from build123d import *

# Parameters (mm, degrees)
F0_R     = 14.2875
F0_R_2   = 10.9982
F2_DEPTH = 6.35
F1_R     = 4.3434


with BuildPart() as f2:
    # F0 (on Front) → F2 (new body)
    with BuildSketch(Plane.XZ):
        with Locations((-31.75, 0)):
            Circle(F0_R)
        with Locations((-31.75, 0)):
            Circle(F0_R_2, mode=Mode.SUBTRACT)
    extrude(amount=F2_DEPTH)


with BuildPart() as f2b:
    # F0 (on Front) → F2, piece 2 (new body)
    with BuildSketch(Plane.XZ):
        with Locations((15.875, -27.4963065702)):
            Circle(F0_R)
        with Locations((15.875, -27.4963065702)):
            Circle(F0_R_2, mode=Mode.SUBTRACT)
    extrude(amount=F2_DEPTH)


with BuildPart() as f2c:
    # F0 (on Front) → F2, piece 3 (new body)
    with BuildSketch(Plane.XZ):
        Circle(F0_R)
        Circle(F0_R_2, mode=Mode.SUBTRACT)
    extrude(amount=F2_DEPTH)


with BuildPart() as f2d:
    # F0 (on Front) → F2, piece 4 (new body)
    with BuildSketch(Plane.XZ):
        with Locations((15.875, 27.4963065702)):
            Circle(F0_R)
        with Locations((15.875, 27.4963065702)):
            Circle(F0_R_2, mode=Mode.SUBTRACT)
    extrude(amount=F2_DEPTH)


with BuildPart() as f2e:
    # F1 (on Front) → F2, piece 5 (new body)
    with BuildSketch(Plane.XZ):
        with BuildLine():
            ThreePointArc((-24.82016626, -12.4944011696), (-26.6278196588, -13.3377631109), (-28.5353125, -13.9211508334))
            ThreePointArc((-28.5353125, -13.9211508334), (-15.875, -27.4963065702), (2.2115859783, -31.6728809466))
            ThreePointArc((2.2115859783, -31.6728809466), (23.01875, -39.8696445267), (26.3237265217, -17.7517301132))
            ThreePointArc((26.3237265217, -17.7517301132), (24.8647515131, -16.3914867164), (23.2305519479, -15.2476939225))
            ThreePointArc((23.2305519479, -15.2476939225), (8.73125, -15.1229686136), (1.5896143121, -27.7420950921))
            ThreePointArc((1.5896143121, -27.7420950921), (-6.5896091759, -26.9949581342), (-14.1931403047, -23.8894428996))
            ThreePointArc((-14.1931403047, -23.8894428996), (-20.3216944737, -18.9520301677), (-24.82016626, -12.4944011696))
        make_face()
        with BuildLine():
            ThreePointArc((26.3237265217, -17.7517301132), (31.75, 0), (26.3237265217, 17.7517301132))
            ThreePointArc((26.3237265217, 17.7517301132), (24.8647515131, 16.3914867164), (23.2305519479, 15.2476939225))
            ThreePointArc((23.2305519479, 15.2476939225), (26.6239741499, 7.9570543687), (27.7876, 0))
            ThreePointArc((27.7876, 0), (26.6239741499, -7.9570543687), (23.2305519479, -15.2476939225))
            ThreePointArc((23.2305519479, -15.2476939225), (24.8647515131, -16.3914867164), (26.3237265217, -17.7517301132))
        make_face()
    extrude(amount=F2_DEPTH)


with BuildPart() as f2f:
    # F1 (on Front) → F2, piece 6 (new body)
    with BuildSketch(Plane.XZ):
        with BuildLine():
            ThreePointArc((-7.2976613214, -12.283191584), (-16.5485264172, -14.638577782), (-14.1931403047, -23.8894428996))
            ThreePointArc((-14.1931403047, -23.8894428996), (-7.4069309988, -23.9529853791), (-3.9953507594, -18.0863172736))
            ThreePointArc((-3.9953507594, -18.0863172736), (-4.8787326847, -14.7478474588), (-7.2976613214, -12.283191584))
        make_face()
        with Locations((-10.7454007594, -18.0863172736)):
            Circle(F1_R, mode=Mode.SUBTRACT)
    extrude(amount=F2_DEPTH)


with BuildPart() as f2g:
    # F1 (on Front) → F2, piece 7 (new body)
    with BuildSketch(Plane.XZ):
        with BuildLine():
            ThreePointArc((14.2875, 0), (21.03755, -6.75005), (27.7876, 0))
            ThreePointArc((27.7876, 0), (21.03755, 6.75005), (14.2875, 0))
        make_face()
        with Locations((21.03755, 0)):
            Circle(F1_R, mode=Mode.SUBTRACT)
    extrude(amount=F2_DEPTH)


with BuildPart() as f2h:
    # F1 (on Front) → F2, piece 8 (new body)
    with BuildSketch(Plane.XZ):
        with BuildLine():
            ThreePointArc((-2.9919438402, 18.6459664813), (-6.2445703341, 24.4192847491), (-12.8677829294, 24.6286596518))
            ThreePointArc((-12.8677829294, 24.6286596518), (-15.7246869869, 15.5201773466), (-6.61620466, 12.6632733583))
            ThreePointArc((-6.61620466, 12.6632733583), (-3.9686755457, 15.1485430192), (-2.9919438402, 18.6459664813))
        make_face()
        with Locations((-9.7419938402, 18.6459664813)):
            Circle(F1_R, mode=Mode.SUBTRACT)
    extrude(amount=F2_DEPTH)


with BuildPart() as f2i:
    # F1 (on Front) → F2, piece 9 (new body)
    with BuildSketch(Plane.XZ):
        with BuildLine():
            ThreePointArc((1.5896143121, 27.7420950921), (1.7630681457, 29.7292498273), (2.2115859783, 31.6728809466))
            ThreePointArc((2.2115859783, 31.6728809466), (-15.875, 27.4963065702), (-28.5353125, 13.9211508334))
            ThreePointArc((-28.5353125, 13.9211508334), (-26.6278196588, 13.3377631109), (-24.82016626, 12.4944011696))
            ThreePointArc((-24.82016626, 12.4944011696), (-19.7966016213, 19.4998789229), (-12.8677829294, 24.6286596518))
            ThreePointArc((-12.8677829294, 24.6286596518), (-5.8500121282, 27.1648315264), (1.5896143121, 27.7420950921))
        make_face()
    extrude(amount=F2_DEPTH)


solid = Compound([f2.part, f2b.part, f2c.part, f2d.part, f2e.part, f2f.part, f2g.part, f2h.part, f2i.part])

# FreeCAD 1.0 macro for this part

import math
import FreeCAD as App
import Part
import Sketcher
from FreeCAD import Vector
Q = App.Units.Quantity

doc = App.newDocument("Part")
body = doc.addObject("PartDesign::Body", "Body")

# Sketch on XZ plane
sketch1 = body.newObject("Sketcher::SketchObject", "Sketch")
sketch1.AttachmentSupport = (doc.getObject("XZ_Plane"), [""])
sketch1.MapMode = "FlatFace"
sketch1.addGeometry(Part.Circle(Vector(-32, 0, 0), Vector(0, 0, 1), 14), False)
sketch1.addGeometry(Part.Circle(Vector(-32, 0, 0), Vector(0, 0, 1), 11), False)
sketch1.addConstraint(Sketcher.Constraint("Coincident", 1, 3, 0, 3))
sketch1.addConstraint(Sketcher.Constraint("PointOnObject", 0, 3, -1))
sketch1.addConstraint(Sketcher.Constraint("Diameter", 0, Q("1.125 in")))
sketch1.addConstraint(Sketcher.Constraint("Diameter", 1, Q("0.866 in")))
sketch1.addConstraint(Sketcher.Constraint("DistanceX", 0, 3, -1, 1, Q("1.25 in")))
pad1 = body.newObject("PartDesign::Pad", "Pad")
pad1.Profile = sketch1
pad1.Length = Q("0.25 in")
body2 = doc.addObject("PartDesign::Body", "Body001")

# Sketch on XZ plane
sketch2 = body2.newObject("Sketcher::SketchObject", "Sketch001")
sketch2.AttachmentSupport = (doc.getObject("XZ_Plane001"), [""])
sketch2.MapMode = "FlatFace"
sketch2.addGeometry(Part.Circle(Vector(16, -27, 0), Vector(0, 0, 1), 14), False)
sketch2.addGeometry(Part.Circle(Vector(16, -27, 0), Vector(0, 0, 1), 11), False)
sketch2.addConstraint(Sketcher.Constraint("Coincident", 1, 3, 0, 3))
sketch2.addConstraint(Sketcher.Constraint("Diameter", 0, Q("1.125 in")))
sketch2.addConstraint(Sketcher.Constraint("Diameter", 1, Q("0.866 in")))
sketch2.addConstraint(Sketcher.Constraint("DistanceX", -1, 1, 0, 3, Q("0.625 in")))
sketch2.addConstraint(Sketcher.Constraint("DistanceY", 0, 3, -1, 1, 27.496307))
pad2 = body2.newObject("PartDesign::Pad", "Pad001")
pad2.Profile = sketch2
pad2.Length = Q("0.25 in")
body3 = doc.addObject("PartDesign::Body", "Body002")

# Sketch on XZ plane
sketch3 = body3.newObject("Sketcher::SketchObject", "Sketch002")
sketch3.AttachmentSupport = (doc.getObject("XZ_Plane002"), [""])
sketch3.MapMode = "FlatFace"
sketch3.addGeometry(Part.Circle(Vector(0, 0, 0), Vector(0, 0, 1), 14), False)
sketch3.addGeometry(Part.Circle(Vector(0, 0, 0), Vector(0, 0, 1), 11), False)
sketch3.addConstraint(Sketcher.Constraint("Coincident", 0, 3, -1, 1))
sketch3.addConstraint(Sketcher.Constraint("Coincident", 1, 3, -1, 1))
sketch3.addConstraint(Sketcher.Constraint("Diameter", 0, Q("1.125 in")))
sketch3.addConstraint(Sketcher.Constraint("Diameter", 1, Q("0.866 in")))
pad3 = body3.newObject("PartDesign::Pad", "Pad002")
pad3.Profile = sketch3
pad3.Length = Q("0.25 in")
body4 = doc.addObject("PartDesign::Body", "Body003")

# Sketch on XZ plane
sketch4 = body4.newObject("Sketcher::SketchObject", "Sketch003")
sketch4.AttachmentSupport = (doc.getObject("XZ_Plane003"), [""])
sketch4.MapMode = "FlatFace"
sketch4.addGeometry(Part.Circle(Vector(16, 27, 0), Vector(0, 0, 1), 14), False)
sketch4.addGeometry(Part.Circle(Vector(16, 27, 0), Vector(0, 0, 1), 11), False)
sketch4.addConstraint(Sketcher.Constraint("Coincident", 1, 3, 0, 3))
sketch4.addConstraint(Sketcher.Constraint("Diameter", 0, Q("1.125 in")))
sketch4.addConstraint(Sketcher.Constraint("Diameter", 1, Q("0.866 in")))
sketch4.addConstraint(Sketcher.Constraint("DistanceX", -1, 1, 0, 3, Q("0.625 in")))
sketch4.addConstraint(Sketcher.Constraint("DistanceY", -1, 1, 0, 3, 27.496307))
pad4 = body4.newObject("PartDesign::Pad", "Pad003")
pad4.Profile = sketch4
pad4.Length = Q("0.25 in")
body5 = doc.addObject("PartDesign::Body", "Body004")

# Sketch on XZ plane
sketch5 = body5.newObject("Sketcher::SketchObject", "Sketch004")
sketch5.AttachmentSupport = (doc.getObject("XZ_Plane004"), [""])
sketch5.MapMode = "FlatFace"
sketch5.addGeometry(Part.ArcOfCircle(Part.Circle(Vector(-31.7, 0, 0), Vector(0, 0, 1), 14.3), math.radians(-77), math.radians(-60.99)), False)
sketch5.addGeometry(Part.ArcOfCircle(Part.Circle(Vector(0, 0, 0), Vector(0, 0, 1), 31.8), math.radians(-154), math.radians(-86)), False)
sketch5.addGeometry(Part.ArcOfCircle(Part.Circle(Vector(15.9, -27.5, 0), Vector(0, 0, 1), 14.3), math.radians(-163), math.radians(43)), False)
sketch5.addGeometry(Part.ArcOfCircle(Part.Circle(Vector(0, 0, 0), Vector(0, 0, 1), 31.8), math.radians(-34), math.radians(34)), False)
sketch5.addGeometry(Part.ArcOfCircle(Part.Circle(Vector(15.9, 27.5, 0), Vector(0, 0, 1), 14.3), math.radians(-59.01), math.radians(-43)), False)
sketch5.addGeometry(Part.ArcOfCircle(Part.Circle(Vector(0, 0, 0), Vector(0, 0, 1), 27.8), math.radians(0), math.radians(33)), False)
sketch5.addGeometry(Part.ArcOfCircle(Part.Circle(Vector(0, 0, 0), Vector(0, 0, 1), 27.8), math.radians(-33), math.radians(0)), False)
sketch5.addGeometry(Part.ArcOfCircle(Part.Circle(Vector(15.9, -27.5, 0), Vector(0, 0, 1), 14.3), math.radians(59), math.radians(181)), False)
sketch5.addGeometry(Part.ArcOfCircle(Part.Circle(Vector(0, 0, 0), Vector(0, 0, 1), 27.8), math.radians(-121), math.radians(-87)), False)
sketch5.addGeometry(Part.ArcOfCircle(Part.Circle(Vector(0, 0, 0), Vector(0, 0, 1), 27.8), math.radians(-153), math.radians(-121)), False)
sketch5.addConstraint(Sketcher.Constraint("Coincident", 0, 1, 1, 1))
sketch5.addConstraint(Sketcher.Constraint("Coincident", 1, 2, 2, 1))
sketch5.addConstraint(Sketcher.Constraint("Coincident", 2, 2, 3, 1))
sketch5.addConstraint(Sketcher.Constraint("Coincident", 3, 2, 4, 2))
sketch5.addConstraint(Sketcher.Constraint("Coincident", 4, 1, 5, 2))
sketch5.addConstraint(Sketcher.Constraint("Tangent", 5, 1, 6, 2))
sketch5.addConstraint(Sketcher.Constraint("Coincident", 6, 1, 7, 1))
sketch5.addConstraint(Sketcher.Constraint("Coincident", 7, 2, 8, 2))
sketch5.addConstraint(Sketcher.Constraint("Tangent", 8, 1, 9, 2))
sketch5.addConstraint(Sketcher.Constraint("Coincident", 9, 1, 0, 2))
sketch5.addConstraint(Sketcher.Constraint("Coincident", 1, 3, -1, 1))
sketch5.addConstraint(Sketcher.Constraint("Coincident", 3, 3, -1, 1))
sketch5.addConstraint(Sketcher.Constraint("Coincident", 5, 3, -1, 1))
sketch5.addConstraint(Sketcher.Constraint("Coincident", 8, 3, -1, 1))
sketch5.addConstraint(Sketcher.Constraint("Coincident", 7, 3, 2, 3))
sketch5.addConstraint(Sketcher.Constraint("Equal", 0, 2))
sketch5.addConstraint(Sketcher.Constraint("Equal", 1, 3))
sketch5.addConstraint(Sketcher.Constraint("Equal", 2, 4))
sketch5.addConstraint(Sketcher.Constraint("Equal", 5, 6))
sketch5.addConstraint(Sketcher.Constraint("Equal", 4, 7))
sketch5.addConstraint(Sketcher.Constraint("Equal", 6, 8))
sketch5.addConstraint(Sketcher.Constraint("Equal", 8, 9))
sketch5.addConstraint(Sketcher.Constraint("Symmetric", 2, 3, 4, 3, -1))
sketch5.addConstraint(Sketcher.Constraint("PointOnObject", 0, 3, -1))
sketch5.addConstraint(Sketcher.Constraint("PointOnObject", 5, 1, -1))
sketch5.addConstraint(Sketcher.Constraint("Radius", 1, Q("1.25 in")))
sketch5.addConstraint(Sketcher.Constraint("Radius", 0, Q("0.5625 in")))
sketch5.addConstraint(Sketcher.Constraint("Radius", 5, Q("1.094 in")))
sketch5.addConstraint(Sketcher.Constraint("DistanceX", 0, 3, -1, 1, Q("1.25 in")))
sketch5.addConstraint(Sketcher.Constraint("DistanceX", -1, 1, 2, 3, Q("0.625 in")))
sketch5.addConstraint(Sketcher.Constraint("DistanceY", 7, 2, 6, 1, 12.494401))
sketch5.addConstraint(Sketcher.Constraint("DistanceX", 8, 1, -1, 1, 14.19314))
pad5 = body5.newObject("PartDesign::Pad", "Pad004")
pad5.Profile = sketch5
pad5.Length = Q("0.25 in")
body6 = doc.addObject("PartDesign::Body", "Body005")

# Sketch on XZ plane
sketch6 = body6.newObject("Sketcher::SketchObject", "Sketch005")
sketch6.AttachmentSupport = (doc.getObject("XZ_Plane005"), [""])
sketch6.MapMode = "FlatFace"
sketch6.addGeometry(Part.ArcOfCircle(Part.Circle(Vector(-10.7, -18.1, 0), Vector(0, 0, 1), 6.8), math.radians(59), math.radians(239)), False)
sketch6.addGeometry(Part.ArcOfCircle(Part.Circle(Vector(-10.7, -18.1, 0), Vector(0, 0, 1), 6.8), math.radians(-121), math.radians(0)), False)
sketch6.addGeometry(Part.ArcOfCircle(Part.Circle(Vector(-10.7, -18.1, 0), Vector(0, 0, 1), 6.8), math.radians(0), math.radians(59)), False)
sketch6.addGeometry(Part.Circle(Vector(-10.7, -18.1, 0), Vector(0, 0, 1), 4.3), False)
sketch6.addConstraint(Sketcher.Constraint("Tangent", 0, 2, 1, 1))
sketch6.addConstraint(Sketcher.Constraint("Tangent", 1, 2, 2, 1))
sketch6.addConstraint(Sketcher.Constraint("Tangent", 2, 2, 0, 1))
sketch6.addConstraint(Sketcher.Constraint("Coincident", 3, 3, 0, 3))
sketch6.addConstraint(Sketcher.Constraint("Horizontal", 3, 3, 1, 2))
sketch6.addConstraint(Sketcher.Constraint("Diameter", 3, Q("0.342 in")))
sketch6.addConstraint(Sketcher.Constraint("Radius", 0, 6.75005))
sketch6.addConstraint(Sketcher.Constraint("DistanceX", 0, 3, -1, 1, 10.745401))
sketch6.addConstraint(Sketcher.Constraint("DistanceX", 0, 2, -1, 1, 14.19314))
sketch6.addConstraint(Sketcher.Constraint("DistanceX", 2, 2, -1, 1, 7.297661))
sketch6.addConstraint(Sketcher.Constraint("DistanceY", 2, 2, -1, 1, 12.283192))
pad6 = body6.newObject("PartDesign::Pad", "Pad005")
pad6.Profile = sketch6
pad6.Length = Q("0.25 in")
body7 = doc.addObject("PartDesign::Body", "Body006")

# Sketch on XZ plane
sketch7 = body7.newObject("Sketcher::SketchObject", "Sketch006")
sketch7.AttachmentSupport = (doc.getObject("XZ_Plane006"), [""])
sketch7.MapMode = "FlatFace"
sketch7.addGeometry(Part.Circle(Vector(21, 0, 0), Vector(0, 0, 1), 6.8), False)
sketch7.addGeometry(Part.Circle(Vector(21, 0, 0), Vector(0, 0, 1), 4.3), False)
sketch7.addConstraint(Sketcher.Constraint("Coincident", 1, 3, 0, 3))
sketch7.addConstraint(Sketcher.Constraint("PointOnObject", 0, 3, -1))
sketch7.addConstraint(Sketcher.Constraint("Diameter", 1, Q("0.342 in")))
sketch7.addConstraint(Sketcher.Constraint("Diameter", 0, Q("0.5315 in")))
sketch7.addConstraint(Sketcher.Constraint("DistanceX", -1, 1, 0, 3, 21.03755))
pad7 = body7.newObject("PartDesign::Pad", "Pad006")
pad7.Profile = sketch7
pad7.Length = Q("0.25 in")
body8 = doc.addObject("PartDesign::Body", "Body007")

# Sketch on XZ plane
sketch8 = body8.newObject("Sketcher::SketchObject", "Sketch007")
sketch8.AttachmentSupport = (doc.getObject("XZ_Plane007"), [""])
sketch8.MapMode = "FlatFace"
sketch8.addGeometry(Part.ArcOfCircle(Part.Circle(Vector(-9.7, 18.6, 0), Vector(0, 0, 1), 6.8), math.radians(0), math.radians(118)), False)
sketch8.addGeometry(Part.ArcOfCircle(Part.Circle(Vector(-9.7, 18.6, 0), Vector(0, 0, 1), 6.8), math.radians(118), math.radians(298)), False)
sketch8.addGeometry(Part.ArcOfCircle(Part.Circle(Vector(-9.7, 18.6, 0), Vector(0, 0, 1), 6.8), math.radians(-62), math.radians(0)), False)
sketch8.addGeometry(Part.Circle(Vector(-9.7, 18.6, 0), Vector(0, 0, 1), 4.3), False)
sketch8.addConstraint(Sketcher.Constraint("Tangent", 0, 2, 1, 1))
sketch8.addConstraint(Sketcher.Constraint("Tangent", 1, 2, 2, 1))
sketch8.addConstraint(Sketcher.Constraint("Tangent", 2, 2, 0, 1))
sketch8.addConstraint(Sketcher.Constraint("Coincident", 3, 3, 0, 3))
sketch8.addConstraint(Sketcher.Constraint("Horizontal", 3, 3, 2, 2))
sketch8.addConstraint(Sketcher.Constraint("Diameter", 3, Q("0.342 in")))
sketch8.addConstraint(Sketcher.Constraint("Radius", 0, 6.75005))
sketch8.addConstraint(Sketcher.Constraint("DistanceY", -1, 1, 0, 2, 24.62866))
sketch8.addConstraint(Sketcher.Constraint("DistanceX", 0, 2, 0, 3, 3.125789))
sketch8.addConstraint(Sketcher.Constraint("DistanceX", 0, 3, 1, 2, 3.125789))
sketch8.addConstraint(Sketcher.Constraint("DistanceX", 0, 3, -1, 1, 9.741994))
pad8 = body8.newObject("PartDesign::Pad", "Pad007")
pad8.Profile = sketch8
pad8.Length = Q("0.25 in")
body9 = doc.addObject("PartDesign::Body", "Body008")

# Sketch on XZ plane
sketch9 = body9.newObject("Sketcher::SketchObject", "Sketch008")
sketch9.AttachmentSupport = (doc.getObject("XZ_Plane008"), [""])
sketch9.MapMode = "FlatFace"
sketch9.addGeometry(Part.ArcOfCircle(Part.Circle(Vector(15.9, 27.5, 0), Vector(0, 0, 1), 14.3), math.radians(163), math.radians(179.01)), False)
sketch9.addGeometry(Part.ArcOfCircle(Part.Circle(Vector(0, 0, 0), Vector(0, 0, 1), 31.8), math.radians(86), math.radians(154)), False)
sketch9.addGeometry(Part.ArcOfCircle(Part.Circle(Vector(-31.7, 0, 0), Vector(0, 0, 1), 14.3), math.radians(60.99), math.radians(77)), False)
sketch9.addGeometry(Part.ArcOfCircle(Part.Circle(Vector(0, 0, 0), Vector(0, 0, 1), 27.8), math.radians(118), math.radians(153)), False)
sketch9.addGeometry(Part.ArcOfCircle(Part.Circle(Vector(0, 0, 0), Vector(0, 0, 1), 27.8), math.radians(87), math.radians(118)), False)
sketch9.addConstraint(Sketcher.Constraint("Coincident", 0, 1, 1, 1))
sketch9.addConstraint(Sketcher.Constraint("Coincident", 1, 2, 2, 2))
sketch9.addConstraint(Sketcher.Constraint("Coincident", 2, 1, 3, 2))
sketch9.addConstraint(Sketcher.Constraint("Tangent", 3, 1, 4, 2))
sketch9.addConstraint(Sketcher.Constraint("Coincident", 4, 1, 0, 2))
sketch9.addConstraint(Sketcher.Constraint("Coincident", 1, 3, -1, 1))
sketch9.addConstraint(Sketcher.Constraint("Coincident", 3, 3, -1, 1))
sketch9.addConstraint(Sketcher.Constraint("Equal", 0, 2))
sketch9.addConstraint(Sketcher.Constraint("Equal", 3, 4))
sketch9.addConstraint(Sketcher.Constraint("PointOnObject", 2, 3, -1))
sketch9.addConstraint(Sketcher.Constraint("Radius", 1, Q("1.25 in")))
sketch9.addConstraint(Sketcher.Constraint("Radius", 0, Q("0.5625 in")))
sketch9.addConstraint(Sketcher.Constraint("Radius", 3, Q("1.094 in")))
sketch9.addConstraint(Sketcher.Constraint("DistanceX", 2, 3, -1, 1, Q("1.25 in")))
sketch9.addConstraint(Sketcher.Constraint("DistanceX", -1, 1, 0, 3, Q("0.625 in")))
sketch9.addConstraint(Sketcher.Constraint("DistanceX", 1, 2, 0, 1, 30.746898))
sketch9.addConstraint(Sketcher.Constraint("DistanceY", -1, 1, 3, 1, 24.62866))
pad9 = body9.newObject("PartDesign::Pad", "Pad008")
pad9.Profile = sketch9
pad9.Length = Q("0.25 in")

doc.recompute()
